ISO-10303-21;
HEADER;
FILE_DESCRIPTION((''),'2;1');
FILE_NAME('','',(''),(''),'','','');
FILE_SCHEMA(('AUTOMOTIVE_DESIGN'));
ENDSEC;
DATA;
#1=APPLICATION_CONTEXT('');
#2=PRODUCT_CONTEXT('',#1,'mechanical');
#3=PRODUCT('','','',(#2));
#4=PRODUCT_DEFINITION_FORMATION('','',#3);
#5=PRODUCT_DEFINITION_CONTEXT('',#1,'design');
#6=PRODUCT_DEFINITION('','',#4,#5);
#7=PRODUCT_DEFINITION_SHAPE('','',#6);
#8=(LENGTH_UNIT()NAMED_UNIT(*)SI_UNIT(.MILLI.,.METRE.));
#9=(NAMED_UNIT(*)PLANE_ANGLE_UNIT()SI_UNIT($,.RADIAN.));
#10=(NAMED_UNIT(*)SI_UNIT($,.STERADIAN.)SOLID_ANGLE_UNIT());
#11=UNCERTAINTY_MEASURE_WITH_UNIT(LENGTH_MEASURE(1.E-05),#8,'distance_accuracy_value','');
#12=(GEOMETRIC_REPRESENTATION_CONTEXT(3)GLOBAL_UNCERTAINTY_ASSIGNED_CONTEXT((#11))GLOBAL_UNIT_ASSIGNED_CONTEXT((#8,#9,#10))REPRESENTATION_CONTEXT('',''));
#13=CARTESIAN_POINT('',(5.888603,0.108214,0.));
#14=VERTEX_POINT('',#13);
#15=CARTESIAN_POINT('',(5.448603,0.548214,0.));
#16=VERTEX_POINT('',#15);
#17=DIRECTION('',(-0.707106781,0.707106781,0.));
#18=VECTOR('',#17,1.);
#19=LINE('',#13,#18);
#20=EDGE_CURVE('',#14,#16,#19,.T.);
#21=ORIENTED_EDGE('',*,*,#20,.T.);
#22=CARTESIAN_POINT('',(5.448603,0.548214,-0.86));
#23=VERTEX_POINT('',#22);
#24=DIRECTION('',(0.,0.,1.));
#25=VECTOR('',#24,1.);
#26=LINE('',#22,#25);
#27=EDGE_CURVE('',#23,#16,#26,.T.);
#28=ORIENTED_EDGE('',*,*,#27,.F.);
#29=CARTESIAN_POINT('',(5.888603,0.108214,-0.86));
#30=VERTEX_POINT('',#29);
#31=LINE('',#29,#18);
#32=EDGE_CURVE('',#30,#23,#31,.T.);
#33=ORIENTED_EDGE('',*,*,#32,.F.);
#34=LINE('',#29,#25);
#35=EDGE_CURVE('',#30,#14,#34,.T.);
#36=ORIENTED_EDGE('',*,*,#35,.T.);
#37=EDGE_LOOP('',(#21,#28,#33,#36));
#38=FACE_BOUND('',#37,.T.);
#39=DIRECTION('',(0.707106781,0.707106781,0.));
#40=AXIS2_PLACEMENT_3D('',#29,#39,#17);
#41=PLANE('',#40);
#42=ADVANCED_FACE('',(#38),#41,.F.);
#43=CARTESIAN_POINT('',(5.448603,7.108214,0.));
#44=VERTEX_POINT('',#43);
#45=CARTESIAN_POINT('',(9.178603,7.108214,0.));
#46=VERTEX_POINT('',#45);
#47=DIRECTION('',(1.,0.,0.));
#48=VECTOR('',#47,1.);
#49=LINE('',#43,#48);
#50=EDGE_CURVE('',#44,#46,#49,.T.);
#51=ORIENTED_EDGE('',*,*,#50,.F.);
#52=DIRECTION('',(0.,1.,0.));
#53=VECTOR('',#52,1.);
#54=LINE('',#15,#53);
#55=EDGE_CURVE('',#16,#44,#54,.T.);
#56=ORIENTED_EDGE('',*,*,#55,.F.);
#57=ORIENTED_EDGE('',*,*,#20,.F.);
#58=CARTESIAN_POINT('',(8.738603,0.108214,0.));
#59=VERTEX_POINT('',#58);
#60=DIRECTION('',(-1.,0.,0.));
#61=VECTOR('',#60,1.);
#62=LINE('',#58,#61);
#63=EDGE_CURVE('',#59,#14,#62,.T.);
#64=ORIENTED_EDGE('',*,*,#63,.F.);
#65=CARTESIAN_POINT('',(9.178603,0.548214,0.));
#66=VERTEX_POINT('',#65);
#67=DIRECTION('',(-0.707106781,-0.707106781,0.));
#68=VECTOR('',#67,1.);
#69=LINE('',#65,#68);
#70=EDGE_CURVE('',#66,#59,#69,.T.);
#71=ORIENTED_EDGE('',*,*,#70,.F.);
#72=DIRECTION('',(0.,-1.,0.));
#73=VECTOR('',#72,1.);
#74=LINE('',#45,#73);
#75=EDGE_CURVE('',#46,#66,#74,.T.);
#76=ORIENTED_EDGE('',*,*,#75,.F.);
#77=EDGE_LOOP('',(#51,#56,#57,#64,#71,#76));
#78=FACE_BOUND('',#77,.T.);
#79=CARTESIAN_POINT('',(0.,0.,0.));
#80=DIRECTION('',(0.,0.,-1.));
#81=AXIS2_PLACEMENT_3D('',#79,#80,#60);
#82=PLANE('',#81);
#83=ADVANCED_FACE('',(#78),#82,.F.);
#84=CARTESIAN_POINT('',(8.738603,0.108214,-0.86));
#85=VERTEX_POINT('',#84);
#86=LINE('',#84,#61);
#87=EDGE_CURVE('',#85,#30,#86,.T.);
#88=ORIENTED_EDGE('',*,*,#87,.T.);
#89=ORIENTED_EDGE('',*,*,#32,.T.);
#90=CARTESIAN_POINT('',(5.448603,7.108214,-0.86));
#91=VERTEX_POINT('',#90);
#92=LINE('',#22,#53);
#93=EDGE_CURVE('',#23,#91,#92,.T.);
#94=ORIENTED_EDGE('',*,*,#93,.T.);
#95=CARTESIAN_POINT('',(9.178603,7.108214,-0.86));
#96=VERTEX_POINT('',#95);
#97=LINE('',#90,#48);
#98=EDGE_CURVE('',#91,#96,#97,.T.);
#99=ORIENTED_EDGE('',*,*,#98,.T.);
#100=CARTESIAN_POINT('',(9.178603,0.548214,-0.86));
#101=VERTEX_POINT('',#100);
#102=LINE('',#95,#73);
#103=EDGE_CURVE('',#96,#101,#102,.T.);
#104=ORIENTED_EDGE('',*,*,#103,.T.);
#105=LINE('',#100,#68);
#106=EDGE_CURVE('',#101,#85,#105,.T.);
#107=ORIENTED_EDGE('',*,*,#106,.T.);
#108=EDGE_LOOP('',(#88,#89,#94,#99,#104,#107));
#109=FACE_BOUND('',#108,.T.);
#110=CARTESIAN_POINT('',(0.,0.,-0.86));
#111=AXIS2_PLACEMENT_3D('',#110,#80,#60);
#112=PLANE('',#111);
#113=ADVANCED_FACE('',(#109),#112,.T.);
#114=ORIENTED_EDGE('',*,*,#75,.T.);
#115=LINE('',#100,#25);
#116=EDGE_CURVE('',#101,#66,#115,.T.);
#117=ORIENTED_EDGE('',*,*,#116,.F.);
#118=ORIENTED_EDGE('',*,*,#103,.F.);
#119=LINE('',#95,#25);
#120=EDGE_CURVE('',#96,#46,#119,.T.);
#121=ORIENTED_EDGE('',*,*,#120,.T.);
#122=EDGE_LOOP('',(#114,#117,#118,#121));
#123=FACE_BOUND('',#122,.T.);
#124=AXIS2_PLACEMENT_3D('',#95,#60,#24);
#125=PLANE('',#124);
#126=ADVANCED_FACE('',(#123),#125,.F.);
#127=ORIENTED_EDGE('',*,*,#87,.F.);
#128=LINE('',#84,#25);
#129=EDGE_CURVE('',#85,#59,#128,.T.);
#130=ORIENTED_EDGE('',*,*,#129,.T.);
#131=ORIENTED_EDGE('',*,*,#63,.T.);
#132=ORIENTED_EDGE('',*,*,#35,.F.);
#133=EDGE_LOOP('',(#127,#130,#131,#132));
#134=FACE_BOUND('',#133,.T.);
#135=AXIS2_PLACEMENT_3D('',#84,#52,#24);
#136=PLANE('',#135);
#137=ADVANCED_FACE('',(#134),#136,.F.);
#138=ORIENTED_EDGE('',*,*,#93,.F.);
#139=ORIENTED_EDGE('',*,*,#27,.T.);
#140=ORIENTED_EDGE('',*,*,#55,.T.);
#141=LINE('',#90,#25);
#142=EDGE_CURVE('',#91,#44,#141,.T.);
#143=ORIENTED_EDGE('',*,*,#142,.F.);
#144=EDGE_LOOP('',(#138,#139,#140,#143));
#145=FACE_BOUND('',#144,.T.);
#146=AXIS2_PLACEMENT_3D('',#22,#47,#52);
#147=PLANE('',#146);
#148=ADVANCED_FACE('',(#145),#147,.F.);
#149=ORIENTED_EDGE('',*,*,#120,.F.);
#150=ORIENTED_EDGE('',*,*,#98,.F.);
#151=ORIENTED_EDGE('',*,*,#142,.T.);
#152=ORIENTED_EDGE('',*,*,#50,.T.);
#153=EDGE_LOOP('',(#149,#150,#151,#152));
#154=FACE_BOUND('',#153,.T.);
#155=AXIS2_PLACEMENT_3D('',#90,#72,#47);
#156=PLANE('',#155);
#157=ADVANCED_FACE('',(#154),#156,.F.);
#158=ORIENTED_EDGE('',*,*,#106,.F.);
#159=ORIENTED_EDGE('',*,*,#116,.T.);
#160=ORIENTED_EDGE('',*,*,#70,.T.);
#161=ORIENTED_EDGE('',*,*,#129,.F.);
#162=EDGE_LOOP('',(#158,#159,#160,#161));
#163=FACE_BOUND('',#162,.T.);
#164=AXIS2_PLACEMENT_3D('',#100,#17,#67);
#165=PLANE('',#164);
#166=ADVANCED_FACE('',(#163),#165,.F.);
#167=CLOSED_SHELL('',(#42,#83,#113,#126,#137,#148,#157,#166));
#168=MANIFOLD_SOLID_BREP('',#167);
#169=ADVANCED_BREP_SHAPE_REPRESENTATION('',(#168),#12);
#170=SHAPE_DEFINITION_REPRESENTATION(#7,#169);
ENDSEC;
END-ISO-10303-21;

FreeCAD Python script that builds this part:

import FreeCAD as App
import Part
import Sketcher
from FreeCAD import Vector

doc = App.newDocument("Part")
body = doc.addObject("PartDesign::Body", "Body")

# Sketch on XY plane
sketch1 = doc.addObject("Sketcher::SketchObject", "Sketch")
body.addObject(sketch1)
sketch1.AttachmentSupport = (doc.XY_Plane, [""])
sketch1.MapMode = "FlatFace"
sketch1.addGeometry([
    Part.LineSegment(Vector(8.7, 0.1, 0), Vector(5.9, 0.1, 0)),  # 0
    Part.LineSegment(Vector(5.9, 0.1, 0), Vector(5.4, 0.5, 0)),  # 1
    Part.LineSegment(Vector(5.4, 0.5, 0), Vector(5.4, 7.1, 0)),  # 2
    Part.LineSegment(Vector(5.4, 7.1, 0), Vector(9.2, 7.1, 0)),  # 3
    Part.LineSegment(Vector(9.2, 7.1, 0), Vector(9.2, 0.5, 0)),  # 4
    Part.LineSegment(Vector(9.2, 0.5, 0), Vector(8.7, 0.1, 0)),  # 5
], False)
sketch1.addConstraint([
    Sketcher.Constraint("Coincident", 0, 2, 1, 1),
    Sketcher.Constraint("Coincident", 1, 2, 2, 1),
    Sketcher.Constraint("Coincident", 2, 2, 3, 1),
    Sketcher.Constraint("Coincident", 3, 2, 4, 1),
    Sketcher.Constraint("Coincident", 4, 2, 5, 1),
    Sketcher.Constraint("Coincident", 5, 2, 0, 1),
    Sketcher.Constraint("Horizontal", 0),
    Sketcher.Constraint("Vertical", 2),
    Sketcher.Constraint("Horizontal", 3),
    Sketcher.Constraint("Vertical", 4),
    Sketcher.Constraint("Perpendicular", 1, 5),
    Sketcher.Constraint("Horizontal", 1, 2, 4, 2),
    Sketcher.Constraint("Equal", 1, 5),
    Sketcher.Constraint("DistanceY", 0, 2, 2, 2, 7.0),
    Sketcher.Constraint("DistanceX", 0, 2, 0, 1, 2.85),
    Sketcher.Constraint("DistanceX", 3, 1, 3, 2, 3.73),
    Sketcher.Constraint("DistanceX", -1, 1, 0, 2, 5.888603),
    Sketcher.Constraint("DistanceY", -1, 1, 0, 2, 0.108214),
])
pad1 = doc.addObject("PartDesign::Pad", "Pad")
body.addObject(pad1)
pad1.Profile = sketch1
pad1.Length = 0.86
pad1.Reversed = True

doc.recompute()
